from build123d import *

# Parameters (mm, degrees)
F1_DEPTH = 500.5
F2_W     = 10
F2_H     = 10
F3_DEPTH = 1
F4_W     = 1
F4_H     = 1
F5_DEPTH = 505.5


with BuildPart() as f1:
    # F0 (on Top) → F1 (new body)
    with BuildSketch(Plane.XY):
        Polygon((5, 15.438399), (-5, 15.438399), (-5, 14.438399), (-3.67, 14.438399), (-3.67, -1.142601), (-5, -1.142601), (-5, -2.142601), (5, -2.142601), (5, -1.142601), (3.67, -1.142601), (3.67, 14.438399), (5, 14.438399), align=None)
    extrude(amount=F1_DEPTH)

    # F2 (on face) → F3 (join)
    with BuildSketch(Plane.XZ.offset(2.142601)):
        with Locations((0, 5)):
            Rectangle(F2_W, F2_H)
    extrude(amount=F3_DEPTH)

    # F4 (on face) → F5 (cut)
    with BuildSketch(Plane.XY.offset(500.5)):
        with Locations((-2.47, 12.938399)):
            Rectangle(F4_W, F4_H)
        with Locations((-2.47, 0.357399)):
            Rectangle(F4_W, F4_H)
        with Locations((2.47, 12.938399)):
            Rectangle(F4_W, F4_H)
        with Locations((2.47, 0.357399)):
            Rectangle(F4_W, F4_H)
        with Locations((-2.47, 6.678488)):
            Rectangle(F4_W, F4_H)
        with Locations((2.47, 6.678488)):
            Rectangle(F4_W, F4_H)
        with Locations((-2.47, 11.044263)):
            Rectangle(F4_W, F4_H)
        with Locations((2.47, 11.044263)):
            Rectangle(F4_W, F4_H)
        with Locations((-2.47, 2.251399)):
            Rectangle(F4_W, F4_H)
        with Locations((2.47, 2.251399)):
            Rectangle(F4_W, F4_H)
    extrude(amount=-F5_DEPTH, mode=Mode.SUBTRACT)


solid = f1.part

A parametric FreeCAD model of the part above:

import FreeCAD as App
import Part
import Sketcher
from FreeCAD import Vector
Q = App.Units.Quantity


def add_polygon(sketch, points):
    """Adds a closed chain of lines whose ends are joined by coincident constraints."""
    first, n = sketch.GeometryCount, len(points)
    for a, b in zip(points, points[1:] + points[:1]):
        sketch.addGeometry(Part.LineSegment(App.Vector(*a, 0), App.Vector(*b, 0)), False)
    for i in range(n):
        sketch.addConstraint(Sketcher.Constraint("Coincident", first + i, 2, first + (i + 1) % n, 1))

doc = App.newDocument("Part")
body = doc.addObject("PartDesign::Body", "Body")

# Sketch on XY plane
sketch1 = body.newObject("Sketcher::SketchObject", "Sketch")
sketch1.AttachmentSupport = (doc.getObject("XY_Plane"), [""])
sketch1.MapMode = "FlatFace"
add_polygon(sketch1, [(5, 15.4), (-5, 15.4), (-5, 14.4), (-3.7, 14.4), (-3.7, -1.1), (-5, -1.1), (-5, -2.1), (5, -2.1), (5, -1.1), (3.7, -1.1), (3.7, 14.4), (5, 14.4)])  # lines 0-11
sketch1.addConstraint([
    Sketcher.Constraint("Horizontal", 0),
    Sketcher.Constraint("Vertical", 1),
    Sketcher.Constraint("Horizontal", 2),
    Sketcher.Constraint("Vertical", 3),
    Sketcher.Constraint("Horizontal", 4),
    Sketcher.Constraint("Vertical", 5),
    Sketcher.Constraint("Horizontal", 6),
    Sketcher.Constraint("Vertical", 7),
    Sketcher.Constraint("Horizontal", 8),
    Sketcher.Constraint("Vertical", 9),
    Sketcher.Constraint("Horizontal", 10),
    Sketcher.Constraint("Vertical", 11),
    Sketcher.Constraint("Symmetric", 4, 2, 7, 2, -2),
    Sketcher.Constraint("Symmetric", 2, 2, 9, 2, -2),
    Sketcher.Constraint("Vertical", 1, 2, 4, 2),
    Sketcher.Constraint("Vertical", 7, 2, 10, 2),
    Sketcher.Constraint("Equal", 1, 5),
    Sketcher.Constraint("DistanceX", 0, 2, 0, 1, Q("10 mm")),
    Sketcher.Constraint("DistanceY", 1, 2, 1, 1, Q("1 mm")),
    Sketcher.Constraint("DistanceX", 2, 1, 2, 2, Q("1.33 mm")),
    Sketcher.Constraint("DistanceY", 3, 2, 3, 1, Q("15.581 mm")),
    Sketcher.Constraint("DistanceY", -1, 1, 0, 2, Q("15.438399 mm")),
])
pad1 = body.newObject("PartDesign::Pad", "Pad")
pad1.Profile = sketch1
pad1.Length = 500.5

# Sketch on XZ plane
sketch2 = body.newObject("Sketcher::SketchObject", "Sketch001")
sketch2.AttachmentSupport = (doc.getObject("XZ_Plane"), [""])
sketch2.MapMode = "FlatFace"
sketch2.AttachmentOffset = App.Placement(Vector(0, 0, 2.142601), App.Rotation())
add_polygon(sketch2, [(-5, 10), (-5, 0), (5, 0), (5, 10)])  # lines 0-3
sketch2.addConstraint([
    Sketcher.Constraint("Vertical", 0),
    Sketcher.Constraint("Horizontal", 1),
    Sketcher.Constraint("Vertical", 2),
    Sketcher.Constraint("Horizontal", 3),
    Sketcher.Constraint("Symmetric", 0, 2, 1, 2, -1, 1),
    Sketcher.Constraint("Equal", 3, 0),
    Sketcher.Constraint("DistanceX", 1, 1, 1, 2, Q("10 mm")),
])
pad2 = body.newObject("PartDesign::Pad", "Pad001")
pad2.Profile = sketch2
pad2.Length = 1

# Sketch on XY plane
sketch3 = body.newObject("Sketcher::SketchObject", "Sketch002")
sketch3.AttachmentSupport = (doc.getObject("XY_Plane"), [""])
sketch3.MapMode = "FlatFace"
sketch3.AttachmentOffset = App.Placement(Vector(0, 0, 500.5), App.Rotation())
add_polygon(sketch3, [(-3, 13.4), (-3, 12.4), (-2, 12.4), (-2, 13.4)])  # lines 0-3
add_polygon(sketch3, [(-3, 0.9), (-3, -0.1), (-2, -0.1), (-2, 0.9)])  # lines 4-7
add_polygon(sketch3, [(2, 13.4), (2, 12.4), (3, 12.4), (3, 13.4)])  # lines 8-11
add_polygon(sketch3, [(2, 0.9), (2, -0.1), (3, -0.1), (3, 0.9)])  # lines 12-15
add_polygon(sketch3, [(-3, 7.2), (-3, 6.2), (-2, 6.2), (-2, 7.2)])  # lines 16-19
add_polygon(sketch3, [(2, 7.2), (2, 6.2), (3, 6.2), (3, 7.2)])  # lines 20-23
add_polygon(sketch3, [(-3, 11.5), (-3, 10.5), (-2, 10.5), (-2, 11.5)])  # lines 24-27
add_polygon(sketch3, [(2, 11.5), (2, 10.5), (3, 10.5), (3, 11.5)])  # lines 28-31
add_polygon(sketch3, [(-3, 2.8), (-3, 1.8), (-2, 1.8), (-2, 2.8)])  # lines 32-35
add_polygon(sketch3, [(2, 2.8), (2, 1.8), (3, 1.8), (3, 2.8)])  # lines 36-39
sketch3.addConstraint([
    Sketcher.Constraint("Vertical", 0),
    Sketcher.Constraint("Horizontal", 1),
    Sketcher.Constraint("Vertical", 2),
    Sketcher.Constraint("Horizontal", 3),
    Sketcher.Constraint("Vertical", 4),
    Sketcher.Constraint("Horizontal", 5),
    Sketcher.Constraint("Vertical", 6),
    Sketcher.Constraint("Horizontal", 7),
    Sketcher.Constraint("Vertical", 8),
    Sketcher.Constraint("Horizontal", 9),
    Sketcher.Constraint("Vertical", 10),
    Sketcher.Constraint("Horizontal", 11),
    Sketcher.Constraint("Vertical", 12),
    Sketcher.Constraint("Horizontal", 13),
    Sketcher.Constraint("Vertical", 14),
    Sketcher.Constraint("Horizontal", 15),
    Sketcher.Constraint("Vertical", 16),
    Sketcher.Constraint("Horizontal", 17),
    Sketcher.Constraint("Vertical", 18),
    Sketcher.Constraint("Horizontal", 19),
    Sketcher.Constraint("Vertical", 20),
    Sketcher.Constraint("Horizontal", 21),
    Sketcher.Constraint("Vertical", 22),
    Sketcher.Constraint("Horizontal", 23),
    Sketcher.Constraint("Vertical", 24),
    Sketcher.Constraint("Horizontal", 25),
    Sketcher.Constraint("Vertical", 26),
    Sketcher.Constraint("Horizontal", 27),
    Sketcher.Constraint("Vertical", 28),
    Sketcher.Constraint("Horizontal", 29),
    Sketcher.Constraint("Vertical", 30),
    Sketcher.Constraint("Horizontal", 31),
    Sketcher.Constraint("Vertical", 32),
    Sketcher.Constraint("Horizontal", 33),
    Sketcher.Constraint("Vertical", 34),
    Sketcher.Constraint("Horizontal", 35),
    Sketcher.Constraint("Vertical", 36),
    Sketcher.Constraint("Horizontal", 37),
    Sketcher.Constraint("Vertical", 38),
    Sketcher.Constraint("Horizontal", 39),
    Sketcher.Constraint("Symmetric", 1, 2, 8, 2, -2),
    Sketcher.Constraint("Symmetric", 3, 2, 10, 2, -2),
    Sketcher.Constraint("Symmetric", 5, 2, 12, 2, -2),
    Sketcher.Constraint("Symmetric", 7, 2, 14, 2, -2),
    Sketcher.Constraint("Symmetric", 17, 2, 20, 2, -2),
    Sketcher.Constraint("Symmetric", 19, 2, 22, 2, -2),
    Sketcher.Constraint("Symmetric", 25, 2, 28, 2, -2),
    Sketcher.Constraint("Symmetric", 27, 2, 30, 2, -2),
    Sketcher.Constraint("Symmetric", 33, 2, 36, 2, -2),
    Sketcher.Constraint("Symmetric", 35, 2, 38, 2, -2),
    Sketcher.Constraint("Vertical", 3, 2, 4, 2),
    Sketcher.Constraint("Vertical", 2, 2, 5, 2),
    Sketcher.Constraint("Vertical", 7, 2, 16, 2),
    Sketcher.Constraint("Vertical", 6, 2, 17, 2),
    Sketcher.Constraint("Vertical", 19, 2, 24, 2),
    Sketcher.Constraint("Vertical", 18, 2, 25, 2),
    Sketcher.Constraint("Vertical", 27, 2, 32, 2),
    Sketcher.Constraint("Vertical", 26, 2, 33, 2),
    Sketcher.Constraint("Equal", 39, 0),
    Sketcher.Constraint("Equal", 2, 4),
    Sketcher.Constraint("Equal", 14, 16),
    Sketcher.Constraint("Equal", 22, 24),
    Sketcher.Constraint("Equal", 30, 32),
    Sketcher.Constraint("DistanceX", 1, 1, 1, 2, Q("1 mm")),
    Sketcher.Constraint("DistanceX", 0, 2, -1, 1, Q("2.97 mm")),
    Sketcher.Constraint("DistanceY", 4, 2, 0, 2, Q("12.581 mm")),
    Sketcher.Constraint("DistanceY", 7, 2, 32, 2, Q("0.894 mm")),
    Sketcher.Constraint("DistanceY", -1, 1, 0, 2, Q("12.438399 mm")),
    Sketcher.Constraint("DistanceY", 7, 2, 16, 2, Q("5.321089 mm")),
    Sketcher.Constraint("DistanceY", -1, 1, 24, 2, Q("10.544263 mm")),
])
pocket1 = body.newObject("PartDesign::Pocket", "Pocket")
pocket1.Profile = sketch3
pocket1.Length = 505.5

doc.recompute()
